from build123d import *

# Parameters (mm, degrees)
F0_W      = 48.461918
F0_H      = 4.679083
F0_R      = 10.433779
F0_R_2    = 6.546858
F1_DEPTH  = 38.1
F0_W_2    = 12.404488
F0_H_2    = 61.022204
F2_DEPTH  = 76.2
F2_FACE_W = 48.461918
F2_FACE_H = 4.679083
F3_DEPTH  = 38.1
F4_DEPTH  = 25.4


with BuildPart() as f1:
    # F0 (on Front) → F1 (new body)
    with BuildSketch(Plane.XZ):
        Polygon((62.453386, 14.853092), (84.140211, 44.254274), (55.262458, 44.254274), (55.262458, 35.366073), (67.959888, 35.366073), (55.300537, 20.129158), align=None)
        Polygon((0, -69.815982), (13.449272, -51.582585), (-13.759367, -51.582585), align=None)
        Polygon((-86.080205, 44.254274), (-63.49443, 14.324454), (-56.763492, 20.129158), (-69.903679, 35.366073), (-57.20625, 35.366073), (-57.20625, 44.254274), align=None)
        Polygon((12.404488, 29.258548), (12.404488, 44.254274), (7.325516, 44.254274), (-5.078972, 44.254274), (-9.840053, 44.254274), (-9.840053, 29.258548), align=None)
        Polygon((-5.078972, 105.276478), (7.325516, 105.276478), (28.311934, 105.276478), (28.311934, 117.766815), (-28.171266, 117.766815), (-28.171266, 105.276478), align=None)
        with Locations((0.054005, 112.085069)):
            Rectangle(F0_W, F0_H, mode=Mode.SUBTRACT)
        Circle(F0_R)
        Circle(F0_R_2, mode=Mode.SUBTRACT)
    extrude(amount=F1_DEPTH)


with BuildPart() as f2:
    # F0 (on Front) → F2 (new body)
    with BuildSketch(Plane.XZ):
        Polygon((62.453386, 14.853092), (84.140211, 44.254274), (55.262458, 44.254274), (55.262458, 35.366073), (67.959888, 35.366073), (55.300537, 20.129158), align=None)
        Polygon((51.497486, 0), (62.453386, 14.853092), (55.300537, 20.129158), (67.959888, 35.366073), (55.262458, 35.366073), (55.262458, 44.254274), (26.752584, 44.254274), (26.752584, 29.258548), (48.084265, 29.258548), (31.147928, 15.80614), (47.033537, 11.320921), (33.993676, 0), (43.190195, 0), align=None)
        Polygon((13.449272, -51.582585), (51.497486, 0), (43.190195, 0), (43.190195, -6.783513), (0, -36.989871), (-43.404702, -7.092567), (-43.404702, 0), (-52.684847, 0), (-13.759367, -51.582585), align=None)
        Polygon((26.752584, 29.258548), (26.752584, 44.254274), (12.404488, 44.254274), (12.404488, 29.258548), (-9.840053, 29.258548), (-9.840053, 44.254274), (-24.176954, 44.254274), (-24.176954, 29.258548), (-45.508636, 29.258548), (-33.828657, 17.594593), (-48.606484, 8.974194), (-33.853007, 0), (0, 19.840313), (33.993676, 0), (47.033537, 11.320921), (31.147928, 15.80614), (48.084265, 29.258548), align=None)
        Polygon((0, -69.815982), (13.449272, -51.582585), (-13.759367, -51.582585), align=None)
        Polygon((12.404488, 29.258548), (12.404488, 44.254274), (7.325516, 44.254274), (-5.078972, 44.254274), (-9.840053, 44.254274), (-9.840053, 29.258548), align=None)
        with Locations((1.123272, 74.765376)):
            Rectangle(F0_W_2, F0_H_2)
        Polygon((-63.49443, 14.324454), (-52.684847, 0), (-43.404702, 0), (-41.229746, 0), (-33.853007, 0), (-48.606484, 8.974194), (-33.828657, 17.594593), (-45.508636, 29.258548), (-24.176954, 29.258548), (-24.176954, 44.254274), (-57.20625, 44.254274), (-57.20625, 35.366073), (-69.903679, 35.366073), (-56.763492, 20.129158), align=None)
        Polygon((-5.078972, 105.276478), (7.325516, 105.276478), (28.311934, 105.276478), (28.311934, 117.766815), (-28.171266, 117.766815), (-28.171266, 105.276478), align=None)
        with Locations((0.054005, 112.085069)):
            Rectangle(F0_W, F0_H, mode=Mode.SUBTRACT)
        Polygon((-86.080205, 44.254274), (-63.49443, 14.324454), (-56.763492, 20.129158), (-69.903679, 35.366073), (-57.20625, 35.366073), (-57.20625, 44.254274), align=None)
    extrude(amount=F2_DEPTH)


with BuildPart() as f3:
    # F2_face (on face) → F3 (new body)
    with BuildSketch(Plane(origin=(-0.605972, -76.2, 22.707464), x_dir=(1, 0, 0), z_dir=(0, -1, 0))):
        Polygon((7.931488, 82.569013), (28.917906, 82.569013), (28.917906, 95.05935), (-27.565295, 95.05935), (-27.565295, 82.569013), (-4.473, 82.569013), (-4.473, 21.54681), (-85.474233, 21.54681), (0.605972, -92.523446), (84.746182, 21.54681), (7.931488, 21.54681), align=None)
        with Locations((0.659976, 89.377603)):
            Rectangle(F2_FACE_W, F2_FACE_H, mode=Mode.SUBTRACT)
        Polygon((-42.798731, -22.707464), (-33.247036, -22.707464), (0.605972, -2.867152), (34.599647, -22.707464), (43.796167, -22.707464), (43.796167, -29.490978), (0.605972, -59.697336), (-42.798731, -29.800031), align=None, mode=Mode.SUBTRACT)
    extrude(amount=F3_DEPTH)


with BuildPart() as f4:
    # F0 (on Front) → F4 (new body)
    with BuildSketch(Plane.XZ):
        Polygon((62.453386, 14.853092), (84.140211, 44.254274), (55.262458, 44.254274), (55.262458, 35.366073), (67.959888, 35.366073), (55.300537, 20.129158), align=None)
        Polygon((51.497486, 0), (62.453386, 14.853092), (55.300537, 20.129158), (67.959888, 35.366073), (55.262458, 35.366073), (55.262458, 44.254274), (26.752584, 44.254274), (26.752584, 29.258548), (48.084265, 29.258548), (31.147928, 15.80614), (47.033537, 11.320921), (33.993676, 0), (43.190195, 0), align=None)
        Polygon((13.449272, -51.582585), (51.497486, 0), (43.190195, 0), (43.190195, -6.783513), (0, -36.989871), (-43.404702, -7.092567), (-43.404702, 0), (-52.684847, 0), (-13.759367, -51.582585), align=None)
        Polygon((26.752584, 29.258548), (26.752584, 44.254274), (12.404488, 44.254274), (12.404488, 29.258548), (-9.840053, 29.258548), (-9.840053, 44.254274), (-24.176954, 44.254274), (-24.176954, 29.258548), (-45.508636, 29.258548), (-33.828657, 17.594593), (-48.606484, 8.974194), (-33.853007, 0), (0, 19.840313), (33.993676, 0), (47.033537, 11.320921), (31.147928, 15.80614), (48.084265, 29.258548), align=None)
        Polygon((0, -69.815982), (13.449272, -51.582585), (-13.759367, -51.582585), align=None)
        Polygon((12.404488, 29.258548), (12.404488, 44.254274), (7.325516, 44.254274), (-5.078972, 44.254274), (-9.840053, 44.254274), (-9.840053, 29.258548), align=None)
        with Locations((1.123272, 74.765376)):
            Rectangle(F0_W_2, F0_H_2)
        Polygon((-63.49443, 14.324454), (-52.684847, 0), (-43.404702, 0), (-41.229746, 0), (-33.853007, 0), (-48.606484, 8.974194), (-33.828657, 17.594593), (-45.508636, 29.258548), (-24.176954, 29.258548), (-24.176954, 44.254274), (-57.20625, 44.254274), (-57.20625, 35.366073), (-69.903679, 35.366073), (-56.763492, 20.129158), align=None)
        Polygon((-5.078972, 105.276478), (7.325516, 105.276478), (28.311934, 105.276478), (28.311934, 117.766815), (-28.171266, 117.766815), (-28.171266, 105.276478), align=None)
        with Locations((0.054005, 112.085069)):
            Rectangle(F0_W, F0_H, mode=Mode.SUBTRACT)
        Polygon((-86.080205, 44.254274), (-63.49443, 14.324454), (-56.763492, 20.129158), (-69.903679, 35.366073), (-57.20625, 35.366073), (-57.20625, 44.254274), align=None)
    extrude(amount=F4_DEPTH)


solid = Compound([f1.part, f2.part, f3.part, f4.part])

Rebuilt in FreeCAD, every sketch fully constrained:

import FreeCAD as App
import Part
import Sketcher
Q = App.Units.Quantity

doc = App.newDocument("Part")
body = doc.addObject("PartDesign::Body", "Body")
body.AllowCompound = True

sketch1 = body.newObject("Sketcher::SketchObject", "Sketch")
sketch1.AttachmentSupport = (doc.getObject("XZ_Plane"), [""])
sketch1.MapMode = "FlatFace"
sketch1.addGeometry([
    Part.LineSegment(App.Vector(62.453386, 14.853092, 0), App.Vector(84.140211, 44.254274, 0)),
    Part.LineSegment(App.Vector(84.140211, 44.254274, 0), App.Vector(55.262458, 44.254274, 0)),
    Part.LineSegment(App.Vector(55.262458, 44.254274, 0), App.Vector(55.262458, 35.366073, 0)),
    Part.LineSegment(App.Vector(55.262458, 35.366073, 0), App.Vector(67.959888, 35.366073, 0)),
    Part.LineSegment(App.Vector(67.959888, 35.366073, 0), App.Vector(55.300537, 20.129158, 0)),
    Part.LineSegment(App.Vector(55.300537, 20.129158, 0), App.Vector(62.453386, 14.853092, 0)),
    Part.LineSegment(App.Vector(0, -69.815982, 0), App.Vector(13.449272, -51.582585, 0)),
    Part.LineSegment(App.Vector(13.449272, -51.582585, 0), App.Vector(-13.759367, -51.582585, 0)),
    Part.LineSegment(App.Vector(-13.759367, -51.582585, 0), App.Vector(0, -69.815982, 0)),
    Part.LineSegment(App.Vector(-86.080205, 44.254274, 0), App.Vector(-63.49443, 14.324454, 0)),
    Part.LineSegment(App.Vector(-63.49443, 14.324454, 0), App.Vector(-56.763492, 20.129158, 0)),
    Part.LineSegment(App.Vector(-56.763492, 20.129158, 0), App.Vector(-69.903679, 35.366073, 0)),
    Part.LineSegment(App.Vector(-69.903679, 35.366073, 0), App.Vector(-57.20625, 35.366073, 0)),
    Part.LineSegment(App.Vector(-57.20625, 35.366073, 0), App.Vector(-57.20625, 44.254274, 0)),
    Part.LineSegment(App.Vector(-57.20625, 44.254274, 0), App.Vector(-86.080205, 44.254274, 0)),
    Part.LineSegment(App.Vector(12.404488, 29.258548, 0), App.Vector(12.404488, 44.254274, 0)),
    Part.LineSegment(App.Vector(12.404488, 44.254274, 0), App.Vector(-9.840053, 44.254274, 0)),
    Part.LineSegment(App.Vector(-9.840053, 44.254274, 0), App.Vector(-9.840053, 29.258548, 0)),
    Part.LineSegment(App.Vector(-9.840053, 29.258548, 0), App.Vector(12.404488, 29.258548, 0)),
    Part.LineSegment(App.Vector(28.311934, 105.276478, 0), App.Vector(28.311934, 117.766815, 0)),
    Part.LineSegment(App.Vector(28.311934, 117.766815, 0), App.Vector(-28.171266, 117.766815, 0)),
    Part.LineSegment(App.Vector(-28.171266, 117.766815, 0), App.Vector(-28.171266, 105.276478, 0)),
    Part.LineSegment(App.Vector(-28.171266, 105.276478, 0), App.Vector(28.311934, 105.276478, 0)),
    Part.LineSegment(App.Vector(24.284964, 109.745527, 0), App.Vector(-24.176954, 109.745527, 0)),
    Part.LineSegment(App.Vector(-24.176954, 109.745527, 0), App.Vector(-24.176954, 114.424611, 0)),
    Part.LineSegment(App.Vector(-24.176954, 114.424611, 0), App.Vector(24.284964, 114.424611, 0)),
    Part.LineSegment(App.Vector(24.284964, 114.424611, 0), App.Vector(24.284964, 109.745527, 0)),
    Part.Circle(App.Vector(0, 0, 0), App.Vector(0, 0, 1), 10.433779),
    Part.Circle(App.Vector(0, 0, 0), App.Vector(0, 0, 1), 6.546858),
], False)
sketch1.addConstraint([
    Sketcher.Constraint("Coincident", 0, 2, 1, 1),
    Sketcher.Constraint("Coincident", 1, 2, 2, 1),
    Sketcher.Constraint("Coincident", 2, 2, 3, 1),
    Sketcher.Constraint("Coincident", 3, 2, 4, 1),
    Sketcher.Constraint("Coincident", 4, 2, 5, 1),
    Sketcher.Constraint("Coincident", 5, 2, 0, 1),
    Sketcher.Constraint("Coincident", 6, 2, 7, 1),
    Sketcher.Constraint("Coincident", 7, 2, 8, 1),
    Sketcher.Constraint("Coincident", 8, 2, 6, 1),
    Sketcher.Constraint("Coincident", 9, 2, 10, 1),
    Sketcher.Constraint("Coincident", 10, 2, 11, 1),
    Sketcher.Constraint("Coincident", 11, 2, 12, 1),
    Sketcher.Constraint("Coincident", 12, 2, 13, 1),
    Sketcher.Constraint("Coincident", 13, 2, 14, 1),
    Sketcher.Constraint("Coincident", 14, 2, 9, 1),
    Sketcher.Constraint("Coincident", 15, 2, 16, 1),
    Sketcher.Constraint("Coincident", 16, 2, 17, 1),
    Sketcher.Constraint("Coincident", 17, 2, 18, 1),
    Sketcher.Constraint("Coincident", 18, 2, 15, 1),
    Sketcher.Constraint("Coincident", 19, 2, 20, 1),
    Sketcher.Constraint("Coincident", 20, 2, 21, 1),
    Sketcher.Constraint("Coincident", 21, 2, 22, 1),
    Sketcher.Constraint("Coincident", 22, 2, 19, 1),
    Sketcher.Constraint("Coincident", 23, 2, 24, 1),
    Sketcher.Constraint("Coincident", 24, 2, 25, 1),
    Sketcher.Constraint("Coincident", 25, 2, 26, 1),
    Sketcher.Constraint("Coincident", 26, 2, 23, 1),
    Sketcher.Constraint("Horizontal", 1),
    Sketcher.Constraint("Vertical", 2),
    Sketcher.Constraint("Horizontal", 3),
    Sketcher.Constraint("Horizontal", 7),
    Sketcher.Constraint("Horizontal", 12),
    Sketcher.Constraint("Vertical", 13),
    Sketcher.Constraint("Horizontal", 14),
    Sketcher.Constraint("Vertical", 15),
    Sketcher.Constraint("Horizontal", 16),
    Sketcher.Constraint("Vertical", 17),
    Sketcher.Constraint("Horizontal", 18),
    Sketcher.Constraint("Vertical", 19),
    Sketcher.Constraint("Horizontal", 20),
    Sketcher.Constraint("Vertical", 21),
    Sketcher.Constraint("Horizontal", 22),
    Sketcher.Constraint("Horizontal", 23),
    Sketcher.Constraint("Vertical", 24),
    Sketcher.Constraint("Horizontal", 25),
    Sketcher.Constraint("Vertical", 26),
    Sketcher.Constraint("Coincident", 27, 3, -1, 1),
    Sketcher.Constraint("Coincident", 28, 3, -1, 1),
    Sketcher.Constraint("PointOnObject", 8, 2, -2),
    Sketcher.Constraint("Perpendicular", 0, 5),
    Sketcher.Constraint("Perpendicular", 5, 6),
    Sketcher.Constraint("Parallel", 8, 9),
    Sketcher.Constraint("Perpendicular", 10, 11),
    Sketcher.Constraint("Horizontal", 4, 2, 10, 2),
    Sketcher.Constraint("Horizontal", 3, 2, 11, 2),
    Sketcher.Constraint("Horizontal", 1, 2, 13, 2),
    Sketcher.Constraint("Horizontal", 14, 2, 15, 2),
    Sketcher.Constraint("Equal", 3, 12),
    Sketcher.Constraint("Equal", 5, 10),
    Sketcher.Constraint("Distance", 9, Q("1.4762002 in")),
    Sketcher.Constraint("Diameter", 27, Q("20.867558 mm")),
    Sketcher.Constraint("Diameter", 28, Q("13.093716 mm")),
    Sketcher.Constraint("DistanceX", 20, 2, 20, 1, Q("56.4832 mm")),
    Sketcher.Constraint("DistanceY", 2, 2, 2, 1, Q("8.888201 mm")),
    Sketcher.Constraint("Distance", 0, Q("36.534202 mm")),
    Sketcher.Constraint("Distance", 5, Q("8.888201 mm")),
    Sketcher.Constraint("Distance", 6, Q("22.657001 mm")),
    Sketcher.Constraint("DistanceX", 3, 1, 3, 2, Q("12.69743 mm")),
    Sketcher.Constraint("DistanceX", 7, 2, 7, 1, Q("27.208639 mm")),
    Sketcher.Constraint("DistanceX", 16, 2, 16, 1, Q("22.244541 mm")),
    Sketcher.Constraint("DistanceX", 9, 2, 6, 2, Q("76.943702 mm")),
    Sketcher.Constraint("DistanceX", 23, 2, 16, 2, Q("14.336901 mm")),
    Sketcher.Constraint("Distance", 11, Q("20.12034 mm")),
    Sketcher.Constraint("DistanceX", 1, 2, 1, 1, Q("28.877753 mm")),
    Sketcher.Constraint("DistanceX", 23, 2, 23, 1, Q("48.461918 mm")),
    Sketcher.Constraint("DistanceY", 15, 1, 15, 2, Q("14.995726 mm")),
    Sketcher.Constraint("DistanceY", 19, 1, 19, 2, Q("12.490337 mm")),
    Sketcher.Constraint("DistanceY", 24, 1, 24, 2, Q("4.679083 mm")),
    Sketcher.Constraint("DistanceX", -1, 1, 0, 2, Q("84.140211 mm")),
    Sketcher.Constraint("DistanceY", -1, 1, 4, 2, Q("20.129158 mm")),
    Sketcher.Constraint("DistanceX", -1, 1, 15, 2, Q("12.404488 mm")),
    Sketcher.Constraint("DistanceY", -1, 1, 24, 2, Q("114.424611 mm")),
    Sketcher.Constraint("DistanceY", 7, 2, 9, 2, Q("65.907039 mm")),
    Sketcher.Constraint("DistanceY", 15, 2, 19, 2, Q("73.512541 mm")),
    Sketcher.Constraint("DistanceX", 23, 2, 22, 2, Q("52.488888 mm")),
])
pad1 = body.newObject("PartDesign::Pad", "Pad")
pad1.Profile = sketch1
pad1.Length = Q("1.5 in")
body2 = doc.addObject("PartDesign::Body", "Body001")

sketch2 = body2.newObject("Sketcher::SketchObject", "Sketch001")
sketch2.AttachmentSupport = (doc.getObject("XZ_Plane001"), [""])
sketch2.MapMode = "FlatFace"
sketch2.addGeometry([
    Part.LineSegment(App.Vector(62.453386, 14.853092, 0), App.Vector(84.140211, 44.254274, 0)),
    Part.LineSegment(App.Vector(84.140211, 44.254274, 0), App.Vector(7.325516, 44.254274, 0)),
    Part.LineSegment(App.Vector(7.325516, 44.254274, 0), App.Vector(7.325516, 105.276478, 0)),
    Part.LineSegment(App.Vector(7.325516, 105.276478, 0), App.Vector(28.311934, 105.276478, 0)),
    Part.LineSegment(App.Vector(28.311934, 105.276478, 0), App.Vector(28.311934, 117.766815, 0)),
    Part.LineSegment(App.Vector(28.311934, 117.766815, 0), App.Vector(-28.171266, 117.766815, 0)),
    Part.LineSegment(App.Vector(-28.171266, 117.766815, 0), App.Vector(-28.171266, 105.276478, 0)),
    Part.LineSegment(App.Vector(-28.171266, 105.276478, 0), App.Vector(-5.078972, 105.276478, 0)),
    Part.LineSegment(App.Vector(-5.078972, 105.276478, 0), App.Vector(-5.078972, 44.254274, 0)),
    Part.LineSegment(App.Vector(-5.078972, 44.254274, 0), App.Vector(-86.080205, 44.254274, 0)),
    Part.LineSegment(App.Vector(-86.080205, 44.254274, 0), App.Vector(-63.49443, 14.324454, 0)),
    Part.LineSegment(App.Vector(-63.49443, 14.324454, 0), App.Vector(-52.684847, 0, 0)),
    Part.LineSegment(App.Vector(-52.684847, 0, 0), App.Vector(-13.759367, -51.582585, 0)),
    Part.LineSegment(App.Vector(-13.759367, -51.582585, 0), App.Vector(0, -69.815982, 0)),
    Part.LineSegment(App.Vector(0, -69.815982, 0), App.Vector(13.449272, -51.582585, 0)),
    Part.LineSegment(App.Vector(13.449272, -51.582585, 0), App.Vector(51.497486, 0, 0)),
    Part.LineSegment(App.Vector(51.497486, 0, 0), App.Vector(62.453386, 14.853092, 0)),
    Part.LineSegment(App.Vector(-33.853007, 0, 0), App.Vector(0, 19.840313, 0)),
    Part.LineSegment(App.Vector(0, 19.840313, 0), App.Vector(33.993676, 0, 0)),
    Part.LineSegment(App.Vector(33.993676, 0, 0), App.Vector(43.190195, 0, 0)),
    Part.LineSegment(App.Vector(43.190195, 0, 0), App.Vector(43.190195, -6.783513, 0)),
    Part.LineSegment(App.Vector(43.190195, -6.783513, 0), App.Vector(0, -36.989871, 0)),
    Part.LineSegment(App.Vector(0, -36.989871, 0), App.Vector(-43.404702, -7.092567, 0)),
    Part.LineSegment(App.Vector(-43.404702, -7.092567, 0), App.Vector(-43.404702, 0, 0)),
    Part.LineSegment(App.Vector(-43.404702, 0, 0), App.Vector(-33.853007, 0, 0)),
    Part.LineSegment(App.Vector(24.284964, 109.745527, 0), App.Vector(-24.176954, 109.745527, 0)),
    Part.LineSegment(App.Vector(-24.176954, 109.745527, 0), App.Vector(-24.176954, 114.424611, 0)),
    Part.LineSegment(App.Vector(-24.176954, 114.424611, 0), App.Vector(24.284964, 114.424611, 0)),
    Part.LineSegment(App.Vector(24.284964, 114.424611, 0), App.Vector(24.284964, 109.745527, 0)),
], False)
sketch2.addConstraint([
    Sketcher.Constraint("Coincident", 0, 2, 1, 1),
    Sketcher.Constraint("Coincident", 1, 2, 2, 1),
    Sketcher.Constraint("Coincident", 2, 2, 3, 1),
    Sketcher.Constraint("Coincident", 3, 2, 4, 1),
    Sketcher.Constraint("Coincident", 4, 2, 5, 1),
    Sketcher.Constraint("Coincident", 5, 2, 6, 1),
    Sketcher.Constraint("Coincident", 6, 2, 7, 1),
    Sketcher.Constraint("Coincident", 7, 2, 8, 1),
    Sketcher.Constraint("Coincident", 8, 2, 9, 1),
    Sketcher.Constraint("Coincident", 9, 2, 10, 1),
    Sketcher.Constraint("Coincident", 10, 2, 11, 1),
    Sketcher.Constraint("Coincident", 11, 2, 12, 1),
    Sketcher.Constraint("Coincident", 12, 2, 13, 1),
    Sketcher.Constraint("Coincident", 13, 2, 14, 1),
    Sketcher.Constraint("Coincident", 14, 2, 15, 1),
    Sketcher.Constraint("Coincident", 15, 2, 16, 1),
    Sketcher.Constraint("Coincident", 16, 2, 0, 1),
    Sketcher.Constraint("Coincident", 17, 2, 18, 1),
    Sketcher.Constraint("Coincident", 18, 2, 19, 1),
    Sketcher.Constraint("Coincident", 19, 2, 20, 1),
    Sketcher.Constraint("Coincident", 20, 2, 21, 1),
    Sketcher.Constraint("Coincident", 21, 2, 22, 1),
    Sketcher.Constraint("Coincident", 22, 2, 23, 1),
    Sketcher.Constraint("Coincident", 23, 2, 24, 1),
    Sketcher.Constraint("Coincident", 24, 2, 17, 1),
    Sketcher.Constraint("Coincident", 25, 2, 26, 1),
    Sketcher.Constraint("Coincident", 26, 2, 27, 1),
    Sketcher.Constraint("Coincident", 27, 2, 28, 1),
    Sketcher.Constraint("Coincident", 28, 2, 25, 1),
    Sketcher.Constraint("Horizontal", 1),
    Sketcher.Constraint("Vertical", 2),
    Sketcher.Constraint("Horizontal", 3),
    Sketcher.Constraint("Vertical", 4),
    Sketcher.Constraint("Horizontal", 5),
    Sketcher.Constraint("Vertical", 6),
    Sketcher.Constraint("Horizontal", 7),
    Sketcher.Constraint("Vertical", 8),
    Sketcher.Constraint("Horizontal", 9),
    Sketcher.Constraint("Horizontal", 19),
    Sketcher.Constraint("Vertical", 20),
    Sketcher.Constraint("Vertical", 23),
    Sketcher.Constraint("Horizontal", 24),
    Sketcher.Constraint("Horizontal", 25),
    Sketcher.Constraint("Vertical", 26),
    Sketcher.Constraint("Horizontal", 27),
    Sketcher.Constraint("Vertical", 28),
    Sketcher.Constraint("PointOnObject", 11, 2, -1),
    Sketcher.Constraint("PointOnObject", 13, 2, -2),
    Sketcher.Constraint("PointOnObject", 15, 2, -1),
    Sketcher.Constraint("PointOnObject", 17, 2, -2),
    Sketcher.Constraint("PointOnObject", 18, 2, -1),
    Sketcher.Constraint("PointOnObject", 21, 2, -2),
    Sketcher.Constraint("PointOnObject", 23, 2, -1),
    Sketcher.Constraint("Parallel", 10, 11),
    Sketcher.Constraint("Parallel", 11, 12),
    Sketcher.Constraint("Parallel", 12, 13),
    Sketcher.Constraint("Parallel", 0, 14),
    Sketcher.Constraint("Parallel", 14, 15),
    Sketcher.Constraint("Parallel", 15, 16),
    Sketcher.Constraint("Horizontal", 3, 2, 6, 2),
    Sketcher.Constraint("Horizontal", 1, 2, 8, 2),
    Sketcher.Constraint("Horizontal", 12, 2, 14, 2),
    Sketcher.Constraint("Equal", 21, 22),
    Sketcher.Constraint("Distance", 21, Q("2.075 in")),
    Sketcher.Constraint("Distance", 10, Q("1.4762002 in")),
    Sketcher.Constraint("DistanceX", 5, 2, 5, 1, Q("56.4832 mm")),
    Sketcher.Constraint("Distance", 0, Q("36.534202 mm")),
    Sketcher.Constraint("Distance", 14, Q("22.657001 mm")),
    Sketcher.Constraint("Distance", 16, Q("18.4566 mm")),
    Sketcher.Constraint("DistanceX", 3, 1, 3, 2, Q("20.986418 mm")),
    Sketcher.Constraint("DistanceX", 19, 1, 19, 2, Q("9.196519 mm")),
    Sketcher.Constraint("DistanceX", 15, 2, 16, 2, Q("10.9559 mm")),
    Sketcher.Constraint("Distance", 11, Q("17.945391 mm")),
    Sketcher.Constraint("Distance", 18, Q("39.35998 mm")),
    Sketcher.Constraint("DistanceX", 1, 2, 1, 1, Q("76.814695 mm")),
    Sketcher.Constraint("DistanceX", 7, 1, 7, 2, Q("23.092294 mm")),
    Sketcher.Constraint("DistanceX", 9, 2, 9, 1, Q("81.001233 mm")),
    Sketcher.Constraint("DistanceX", 24, 1, 24, 2, Q("9.551695 mm")),
    Sketcher.Constraint("DistanceX", 25, 2, 25, 1, Q("48.461918 mm")),
    Sketcher.Constraint("DistanceY", 2, 1, 2, 2, Q("61.022204 mm")),
    Sketcher.Constraint("DistanceY", 4, 1, 4, 2, Q("12.490337 mm")),
    Sketcher.Constraint("DistanceY", 20, 2, 20, 1, Q("6.783513 mm")),
    Sketcher.Constraint("DistanceY", 23, 1, 23, 2, Q("7.092567 mm")),
    Sketcher.Constraint("DistanceY", 26, 1, 26, 2, Q("4.679083 mm")),
    Sketcher.Constraint("DistanceY", 21, 2, -1, 1, Q("36.989871 mm")),
    Sketcher.Constraint("DistanceY", -1, 1, 26, 2, Q("114.424611 mm")),
    Sketcher.Constraint("DistanceX", 25, 2, 7, 2, Q("19.097982 mm")),
])
pad2 = body2.newObject("PartDesign::Pad", "Pad001")
pad2.Profile = sketch2
pad2.Length = Q("3 in")
body3 = doc.addObject("PartDesign::Body", "Body002")

sketch3 = body3.newObject("Sketcher::SketchObject", "Sketch002")
sketch3.AttachmentSupport = (doc.getObject("XZ_Plane002"), [""])
sketch3.MapMode = "FlatFace"
sketch3.AttachmentOffset = App.Placement(App.Vector(0, 0, 3 * 25.4), App.Rotation())
sketch3.addGeometry([
    Part.LineSegment(App.Vector(7.325516, 105.276477, 0), App.Vector(28.311934, 105.276477, 0)),
    Part.LineSegment(App.Vector(28.311934, 105.276477, 0), App.Vector(28.311934, 117.766814, 0)),
    Part.LineSegment(App.Vector(28.311934, 117.766814, 0), App.Vector(-28.171267, 117.766814, 0)),
    Part.LineSegment(App.Vector(-28.171267, 117.766814, 0), App.Vector(-28.171267, 105.276477, 0)),
    Part.LineSegment(App.Vector(-28.171267, 105.276477, 0), App.Vector(-5.078972, 105.276477, 0)),
    Part.LineSegment(App.Vector(-5.078972, 105.276477, 0), App.Vector(-5.078972, 44.254274, 0)),
    Part.LineSegment(App.Vector(-5.078972, 44.254274, 0), App.Vector(-86.080205, 44.254274, 0)),
    Part.LineSegment(App.Vector(-86.080205, 44.254274, 0), App.Vector(0, -69.815982, 0)),
    Part.LineSegment(App.Vector(0, -69.815982, 0), App.Vector(84.14021, 44.254274, 0)),
    Part.LineSegment(App.Vector(84.14021, 44.254274, 0), App.Vector(7.325516, 44.254274, 0)),
    Part.LineSegment(App.Vector(7.325516, 44.254274, 0), App.Vector(7.325516, 105.276477, 0)),
    Part.LineSegment(App.Vector(-43.404703, -7.092567, 0), App.Vector(-43.404703, 0, 0)),
    Part.LineSegment(App.Vector(-43.404703, 0, 0), App.Vector(-33.853008, 0, 0)),
    Part.LineSegment(App.Vector(-33.853008, 0, 0), App.Vector(0, 19.840312, 0)),
    Part.LineSegment(App.Vector(0, 19.840312, 0), App.Vector(33.993675, 0, 0)),
    Part.LineSegment(App.Vector(33.993675, 0, 0), App.Vector(43.190195, 0, 0)),
    Part.LineSegment(App.Vector(43.190195, 0, 0), App.Vector(43.190195, -6.783514, 0)),
    Part.LineSegment(App.Vector(43.190195, -6.783514, 0), App.Vector(0, -36.989872, 0)),
    Part.LineSegment(App.Vector(0, -36.989872, 0), App.Vector(-43.404703, -7.092567, 0)),
    Part.LineSegment(App.Vector(24.284963, 109.745525, 0), App.Vector(-24.176955, 109.745525, 0)),
    Part.LineSegment(App.Vector(-24.176955, 109.745525, 0), App.Vector(-24.176955, 114.424609, 0)),
    Part.LineSegment(App.Vector(-24.176955, 114.424609, 0), App.Vector(24.284963, 114.424609, 0)),
    Part.LineSegment(App.Vector(24.284963, 114.424609, 0), App.Vector(24.284963, 109.745525, 0)),
], False)
sketch3.addConstraint([
    Sketcher.Constraint("Coincident", 0, 2, 1, 1),
    Sketcher.Constraint("Coincident", 1, 2, 2, 1),
    Sketcher.Constraint("Coincident", 2, 2, 3, 1),
    Sketcher.Constraint("Coincident", 3, 2, 4, 1),
    Sketcher.Constraint("Coincident", 4, 2, 5, 1),
    Sketcher.Constraint("Coincident", 5, 2, 6, 1),
    Sketcher.Constraint("Coincident", 6, 2, 7, 1),
    Sketcher.Constraint("Coincident", 7, 2, 8, 1),
    Sketcher.Constraint("Coincident", 8, 2, 9, 1),
    Sketcher.Constraint("Coincident", 9, 2, 10, 1),
    Sketcher.Constraint("Coincident", 10, 2, 0, 1),
    Sketcher.Constraint("Coincident", 11, 2, 12, 1),
    Sketcher.Constraint("Coincident", 12, 2, 13, 1),
    Sketcher.Constraint("Coincident", 13, 2, 14, 1),
    Sketcher.Constraint("Coincident", 14, 2, 15, 1),
    Sketcher.Constraint("Coincident", 15, 2, 16, 1),
    Sketcher.Constraint("Coincident", 16, 2, 17, 1),
    Sketcher.Constraint("Coincident", 17, 2, 18, 1),
    Sketcher.Constraint("Coincident", 18, 2, 11, 1),
    Sketcher.Constraint("Coincident", 19, 2, 20, 1),
    Sketcher.Constraint("Coincident", 20, 2, 21, 1),
    Sketcher.Constraint("Coincident", 21, 2, 22, 1),
    Sketcher.Constraint("Coincident", 22, 2, 19, 1),
    Sketcher.Constraint("Horizontal", 0),
    Sketcher.Constraint("Vertical", 1),
    Sketcher.Constraint("Horizontal", 2),
    Sketcher.Constraint("Vertical", 3),
    Sketcher.Constraint("Horizontal", 4),
    Sketcher.Constraint("Vertical", 5),
    Sketcher.Constraint("Horizontal", 6),
    Sketcher.Constraint("Horizontal", 9),
    Sketcher.Constraint("Vertical", 10),
    Sketcher.Constraint("Vertical", 11),
    Sketcher.Constraint("Horizontal", 12),
    Sketcher.Constraint("Horizontal", 15),
    Sketcher.Constraint("Vertical", 16),
    Sketcher.Constraint("Horizontal", 19),
    Sketcher.Constraint("Vertical", 20),
    Sketcher.Constraint("Horizontal", 21),
    Sketcher.Constraint("Vertical", 22),
    Sketcher.Constraint("PointOnObject", 7, 2, -2),
    Sketcher.Constraint("PointOnObject", 11, 2, -1),
    Sketcher.Constraint("PointOnObject", 13, 2, -2),
    Sketcher.Constraint("PointOnObject", 14, 2, -1),
    Sketcher.Constraint("PointOnObject", 17, 2, -2),
    Sketcher.Constraint("Horizontal", 0, 2, 3, 2),
    Sketcher.Constraint("Horizontal", 6, 2, 8, 2),
    Sketcher.Constraint("Equal", 17, 18),
    Sketcher.Constraint("Distance", 17, Q("2.075 in")),
    Sketcher.Constraint("DistanceX", 2, 2, 2, 1, Q("56.483201 mm")),
    Sketcher.Constraint("DistanceX", 0, 1, 0, 2, Q("20.986418 mm")),
    Sketcher.Constraint("DistanceX", 15, 1, 15, 2, Q("9.19652 mm")),
    Sketcher.Constraint("Distance", 7, Q("142.904951 mm")),
    Sketcher.Constraint("Distance", 14, Q("39.359979 mm")),
    Sketcher.Constraint("DistanceX", 4, 1, 4, 2, Q("23.092295 mm")),
    Sketcher.Constraint("DistanceX", 6, 2, 6, 1, Q("81.001233 mm")),
    Sketcher.Constraint("DistanceX", 9, 2, 9, 1, Q("76.814694 mm")),
    Sketcher.Constraint("DistanceX", 12, 1, 12, 2, Q("9.551695 mm")),
    Sketcher.Constraint("DistanceX", 19, 2, 19, 1, Q("48.461918 mm")),
    Sketcher.Constraint("DistanceY", 1, 1, 1, 2, Q("12.490337 mm")),
    Sketcher.Constraint("DistanceY", 5, 2, 5, 1, Q("61.022203 mm")),
    Sketcher.Constraint("DistanceY", 11, 1, 11, 2, Q("7.092567 mm")),
    Sketcher.Constraint("DistanceY", 16, 2, 16, 1, Q("6.783514 mm")),
    Sketcher.Constraint("DistanceY", 20, 1, 20, 2, Q("4.679083 mm")),
    Sketcher.Constraint("DistanceX", -1, 1, 8, 2, Q("84.14021 mm")),
    Sketcher.Constraint("DistanceX", 12, 2, -1, 1, Q("33.853008 mm")),
    Sketcher.Constraint("DistanceY", -1, 1, 20, 2, Q("114.424609 mm")),
    Sketcher.Constraint("DistanceY", 16, 2, 9, 2, Q("51.037788 mm")),
    Sketcher.Constraint("DistanceX", 19, 2, 10, 2, Q("31.502471 mm")),
])
pad3 = body3.newObject("PartDesign::Pad", "Pad002")
pad3.Profile = sketch3
pad3.Length = Q("1.5 in")
body4 = doc.addObject("PartDesign::Body", "Body003")

sketch4 = body4.newObject("Sketcher::SketchObject", "Sketch003")
sketch4.AttachmentSupport = (doc.getObject("XZ_Plane003"), [""])
sketch4.MapMode = "FlatFace"
sketch4.addGeometry([
    Part.LineSegment(App.Vector(62.453386, 14.853092, 0), App.Vector(84.140211, 44.254274, 0)),
    Part.LineSegment(App.Vector(84.140211, 44.254274, 0), App.Vector(7.325516, 44.254274, 0)),
    Part.LineSegment(App.Vector(7.325516, 44.254274, 0), App.Vector(7.325516, 105.276478, 0)),
    Part.LineSegment(App.Vector(7.325516, 105.276478, 0), App.Vector(28.311934, 105.276478, 0)),
    Part.LineSegment(App.Vector(28.311934, 105.276478, 0), App.Vector(28.311934, 117.766815, 0)),
    Part.LineSegment(App.Vector(28.311934, 117.766815, 0), App.Vector(-28.171266, 117.766815, 0)),
    Part.LineSegment(App.Vector(-28.171266, 117.766815, 0), App.Vector(-28.171266, 105.276478, 0)),
    Part.LineSegment(App.Vector(-28.171266, 105.276478, 0), App.Vector(-5.078972, 105.276478, 0)),
    Part.LineSegment(App.Vector(-5.078972, 105.276478, 0), App.Vector(-5.078972, 44.254274, 0)),
    Part.LineSegment(App.Vector(-5.078972, 44.254274, 0), App.Vector(-86.080205, 44.254274, 0)),
    Part.LineSegment(App.Vector(-86.080205, 44.254274, 0), App.Vector(-63.49443, 14.324454, 0)),
    Part.LineSegment(App.Vector(-63.49443, 14.324454, 0), App.Vector(-52.684847, 0, 0)),
    Part.LineSegment(App.Vector(-52.684847, 0, 0), App.Vector(-13.759367, -51.582585, 0)),
    Part.LineSegment(App.Vector(-13.759367, -51.582585, 0), App.Vector(0, -69.815982, 0)),
    Part.LineSegment(App.Vector(0, -69.815982, 0), App.Vector(13.449272, -51.582585, 0)),
    Part.LineSegment(App.Vector(13.449272, -51.582585, 0), App.Vector(51.497486, 0, 0)),
    Part.LineSegment(App.Vector(51.497486, 0, 0), App.Vector(62.453386, 14.853092, 0)),
    Part.LineSegment(App.Vector(-33.853007, 0, 0), App.Vector(0, 19.840313, 0)),
    Part.LineSegment(App.Vector(0, 19.840313, 0), App.Vector(33.993676, 0, 0)),
    Part.LineSegment(App.Vector(33.993676, 0, 0), App.Vector(43.190195, 0, 0)),
    Part.LineSegment(App.Vector(43.190195, 0, 0), App.Vector(43.190195, -6.783513, 0)),
    Part.LineSegment(App.Vector(43.190195, -6.783513, 0), App.Vector(0, -36.989871, 0)),
    Part.LineSegment(App.Vector(0, -36.989871, 0), App.Vector(-43.404702, -7.092567, 0)),
    Part.LineSegment(App.Vector(-43.404702, -7.092567, 0), App.Vector(-43.404702, 0, 0)),
    Part.LineSegment(App.Vector(-43.404702, 0, 0), App.Vector(-33.853007, 0, 0)),
    Part.LineSegment(App.Vector(24.284964, 109.745527, 0), App.Vector(-24.176954, 109.745527, 0)),
    Part.LineSegment(App.Vector(-24.176954, 109.745527, 0), App.Vector(-24.176954, 114.424611, 0)),
    Part.LineSegment(App.Vector(-24.176954, 114.424611, 0), App.Vector(24.284964, 114.424611, 0)),
    Part.LineSegment(App.Vector(24.284964, 114.424611, 0), App.Vector(24.284964, 109.745527, 0)),
], False)
sketch4.addConstraint([
    Sketcher.Constraint("Coincident", 0, 2, 1, 1),
    Sketcher.Constraint("Coincident", 1, 2, 2, 1),
    Sketcher.Constraint("Coincident", 2, 2, 3, 1),
    Sketcher.Constraint("Coincident", 3, 2, 4, 1),
    Sketcher.Constraint("Coincident", 4, 2, 5, 1),
    Sketcher.Constraint("Coincident", 5, 2, 6, 1),
    Sketcher.Constraint("Coincident", 6, 2, 7, 1),
    Sketcher.Constraint("Coincident", 7, 2, 8, 1),
    Sketcher.Constraint("Coincident", 8, 2, 9, 1),
    Sketcher.Constraint("Coincident", 9, 2, 10, 1),
    Sketcher.Constraint("Coincident", 10, 2, 11, 1),
    Sketcher.Constraint("Coincident", 11, 2, 12, 1),
    Sketcher.Constraint("Coincident", 12, 2, 13, 1),
    Sketcher.Constraint("Coincident", 13, 2, 14, 1),
    Sketcher.Constraint("Coincident", 14, 2, 15, 1),
    Sketcher.Constraint("Coincident", 15, 2, 16, 1),
    Sketcher.Constraint("Coincident", 16, 2, 0, 1),
    Sketcher.Constraint("Coincident", 17, 2, 18, 1),
    Sketcher.Constraint("Coincident", 18, 2, 19, 1),
    Sketcher.Constraint("Coincident", 19, 2, 20, 1),
    Sketcher.Constraint("Coincident", 20, 2, 21, 1),
    Sketcher.Constraint("Coincident", 21, 2, 22, 1),
    Sketcher.Constraint("Coincident", 22, 2, 23, 1),
    Sketcher.Constraint("Coincident", 23, 2, 24, 1),
    Sketcher.Constraint("Coincident", 24, 2, 17, 1),
    Sketcher.Constraint("Coincident", 25, 2, 26, 1),
    Sketcher.Constraint("Coincident", 26, 2, 27, 1),
    Sketcher.Constraint("Coincident", 27, 2, 28, 1),
    Sketcher.Constraint("Coincident", 28, 2, 25, 1),
    Sketcher.Constraint("Horizontal", 1),
    Sketcher.Constraint("Vertical", 2),
    Sketcher.Constraint("Horizontal", 3),
    Sketcher.Constraint("Vertical", 4),
    Sketcher.Constraint("Horizontal", 5),
    Sketcher.Constraint("Vertical", 6),
    Sketcher.Constraint("Horizontal", 7),
    Sketcher.Constraint("Vertical", 8),
    Sketcher.Constraint("Horizontal", 9),
    Sketcher.Constraint("Horizontal", 19),
    Sketcher.Constraint("Vertical", 20),
    Sketcher.Constraint("Vertical", 23),
    Sketcher.Constraint("Horizontal", 24),
    Sketcher.Constraint("Horizontal", 25),
    Sketcher.Constraint("Vertical", 26),
    Sketcher.Constraint("Horizontal", 27),
    Sketcher.Constraint("Vertical", 28),
    Sketcher.Constraint("PointOnObject", 11, 2, -1),
    Sketcher.Constraint("PointOnObject", 13, 2, -2),
    Sketcher.Constraint("PointOnObject", 15, 2, -1),
    Sketcher.Constraint("PointOnObject", 17, 2, -2),
    Sketcher.Constraint("PointOnObject", 18, 2, -1),
    Sketcher.Constraint("PointOnObject", 21, 2, -2),
    Sketcher.Constraint("PointOnObject", 23, 2, -1),
    Sketcher.Constraint("Parallel", 10, 11),
    Sketcher.Constraint("Parallel", 11, 12),
    Sketcher.Constraint("Parallel", 12, 13),
    Sketcher.Constraint("Parallel", 0, 14),
    Sketcher.Constraint("Parallel", 14, 15),
    Sketcher.Constraint("Parallel", 15, 16),
    Sketcher.Constraint("Horizontal", 3, 2, 6, 2),
    Sketcher.Constraint("Horizontal", 1, 2, 8, 2),
    Sketcher.Constraint("Horizontal", 12, 2, 14, 2),
    Sketcher.Constraint("Equal", 21, 22),
    Sketcher.Constraint("Distance", 21, Q("2.075 in")),
    Sketcher.Constraint("Distance", 10, Q("1.4762002 in")),
    Sketcher.Constraint("DistanceX", 5, 2, 5, 1, Q("56.4832 mm")),
    Sketcher.Constraint("Distance", 0, Q("36.534202 mm")),
    Sketcher.Constraint("Distance", 14, Q("22.657001 mm")),
    Sketcher.Constraint("Distance", 16, Q("18.4566 mm")),
    Sketcher.Constraint("DistanceX", 3, 1, 3, 2, Q("20.986418 mm")),
    Sketcher.Constraint("DistanceX", 19, 1, 19, 2, Q("9.196519 mm")),
    Sketcher.Constraint("DistanceX", 15, 2, 16, 2, Q("10.9559 mm")),
    Sketcher.Constraint("Distance", 11, Q("17.945391 mm")),
    Sketcher.Constraint("Distance", 18, Q("39.35998 mm")),
    Sketcher.Constraint("DistanceX", 1, 2, 1, 1, Q("76.814695 mm")),
    Sketcher.Constraint("DistanceX", 7, 1, 7, 2, Q("23.092294 mm")),
    Sketcher.Constraint("DistanceX", 9, 2, 9, 1, Q("81.001233 mm")),
    Sketcher.Constraint("DistanceX", 24, 1, 24, 2, Q("9.551695 mm")),
    Sketcher.Constraint("DistanceX", 25, 2, 25, 1, Q("48.461918 mm")),
    Sketcher.Constraint("DistanceY", 2, 1, 2, 2, Q("61.022204 mm")),
    Sketcher.Constraint("DistanceY", 4, 1, 4, 2, Q("12.490337 mm")),
    Sketcher.Constraint("DistanceY", 20, 2, 20, 1, Q("6.783513 mm")),
    Sketcher.Constraint("DistanceY", 23, 1, 23, 2, Q("7.092567 mm")),
    Sketcher.Constraint("DistanceY", 26, 1, 26, 2, Q("4.679083 mm")),
    Sketcher.Constraint("DistanceY", 21, 2, -1, 1, Q("36.989871 mm")),
    Sketcher.Constraint("DistanceY", -1, 1, 26, 2, Q("114.424611 mm")),
    Sketcher.Constraint("DistanceX", 25, 2, 7, 2, Q("19.097982 mm")),
])
pad4 = body4.newObject("PartDesign::Pad", "Pad003")
pad4.Profile = sketch4
pad4.Length = Q("1 in")

doc.recompute()
